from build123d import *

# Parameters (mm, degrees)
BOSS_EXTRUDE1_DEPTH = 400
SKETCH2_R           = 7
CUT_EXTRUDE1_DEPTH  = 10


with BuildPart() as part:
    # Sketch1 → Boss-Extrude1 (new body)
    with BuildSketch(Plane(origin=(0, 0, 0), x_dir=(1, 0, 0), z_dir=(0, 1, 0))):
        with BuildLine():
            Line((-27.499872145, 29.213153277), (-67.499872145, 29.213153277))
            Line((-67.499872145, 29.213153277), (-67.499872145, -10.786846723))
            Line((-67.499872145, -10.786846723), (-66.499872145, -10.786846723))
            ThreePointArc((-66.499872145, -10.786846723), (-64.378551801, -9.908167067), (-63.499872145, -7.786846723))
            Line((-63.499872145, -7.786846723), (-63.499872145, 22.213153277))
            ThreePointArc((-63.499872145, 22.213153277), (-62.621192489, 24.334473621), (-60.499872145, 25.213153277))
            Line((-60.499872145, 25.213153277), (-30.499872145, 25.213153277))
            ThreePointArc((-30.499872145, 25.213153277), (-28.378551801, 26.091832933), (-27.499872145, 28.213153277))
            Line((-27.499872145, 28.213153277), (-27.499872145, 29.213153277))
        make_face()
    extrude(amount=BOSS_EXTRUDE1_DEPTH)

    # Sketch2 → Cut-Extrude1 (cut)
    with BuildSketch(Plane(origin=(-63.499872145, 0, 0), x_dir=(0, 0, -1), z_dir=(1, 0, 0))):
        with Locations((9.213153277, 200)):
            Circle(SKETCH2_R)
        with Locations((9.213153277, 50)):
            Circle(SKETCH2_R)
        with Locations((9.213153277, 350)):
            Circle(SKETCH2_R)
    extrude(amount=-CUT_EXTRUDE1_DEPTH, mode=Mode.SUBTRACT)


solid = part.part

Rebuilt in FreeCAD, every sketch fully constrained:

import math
import FreeCAD as App
import Part
import Sketcher
from FreeCAD import Vector
Q = App.Units.Quantity

doc = App.newDocument("Part")
body = doc.addObject("PartDesign::Body", "Body")

# Sketch on XZ plane
sketch1 = doc.addObject("Sketcher::SketchObject", "Sketch")
body.addObject(sketch1)
sketch1.AttachmentSupport = (doc.XZ_Plane, [""])
sketch1.MapMode = "FlatFace"
sketch1.addGeometry([
    Part.LineSegment(Vector(-27.5, -29.2, 0), Vector(-67.5, -29.2, 0)),  # 0
    Part.LineSegment(Vector(-67.5, -29.2, 0), Vector(-67.5, 10.8, 0)),  # 1
    Part.LineSegment(Vector(-67.5, 10.8, 0), Vector(-66.5, 10.8, 0)),  # 2
    Part.ArcOfCircle(Part.Circle(Vector(-66.5, 7.8, 0), Vector(0, 0, 1), 3), math.radians(0), math.radians(90)),  # 3
    Part.LineSegment(Vector(-63.5, 7.8, 0), Vector(-63.5, -22.2, 0)),  # 4
    Part.ArcOfCircle(Part.Circle(Vector(-60.5, -22.2, 0), Vector(0, 0, 1), 3), math.radians(180), math.radians(270)),  # 5
    Part.LineSegment(Vector(-60.5, -25.2, 0), Vector(-30.5, -25.2, 0)),  # 6
    Part.ArcOfCircle(Part.Circle(Vector(-30.5, -28.2, 0), Vector(0, 0, 1), 3), math.radians(0), math.radians(90)),  # 7
    Part.LineSegment(Vector(-27.5, -28.2, 0), Vector(-27.5, -29.2, 0)),  # 8
], False)
sketch1.addConstraint([
    Sketcher.Constraint("Coincident", 0, 2, 1, 1),
    Sketcher.Constraint("Coincident", 1, 2, 2, 1),
    Sketcher.Constraint("Tangent", 2, 2, 3, 2),
    Sketcher.Constraint("Tangent", 3, 1, 4, 1),
    Sketcher.Constraint("Tangent", 4, 2, 5, 1),
    Sketcher.Constraint("Tangent", 5, 2, 6, 1),
    Sketcher.Constraint("Tangent", 6, 2, 7, 2),
    Sketcher.Constraint("Tangent", 7, 1, 8, 1),
    Sketcher.Constraint("Coincident", 8, 2, 0, 1),
    Sketcher.Constraint("Horizontal", 0),
    Sketcher.Constraint("Vertical", 1),
    Sketcher.Constraint("Horizontal", 2),
    Sketcher.Constraint("Vertical", 4),
    Sketcher.Constraint("Horizontal", 6),
    Sketcher.Constraint("Vertical", 8),
    Sketcher.Constraint("Equal", 3, 5),
    Sketcher.Constraint("Equal", 5, 7),
    Sketcher.Constraint("Equal", 0, 1),
    Sketcher.Constraint("Equal", 6, 4),
    Sketcher.Constraint("Radius", 3, Q("3 mm")),
    Sketcher.Constraint("DistanceX", 0, 2, 0, 1, Q("40 mm")),
    Sketcher.Constraint("DistanceX", 2, 1, 2, 2, Q("1 mm")),
    Sketcher.Constraint("DistanceX", 3, 3, -1, 1, Q("66.499872 mm")),
    Sketcher.Constraint("DistanceY", -1, 1, 3, 3, Q("7.786847 mm")),
])
pad1 = doc.addObject("PartDesign::Pad", "Pad")
body.addObject(pad1)
pad1.Profile = sketch1
pad1.Length = 400
pad1.Reversed = True

# Sketch on YZ plane
sketch2 = doc.addObject("Sketcher::SketchObject", "Sketch001")
body.addObject(sketch2)
sketch2.AttachmentSupport = (doc.YZ_Plane, [""])
sketch2.MapMode = "FlatFace"
sketch2.AttachmentOffset = App.Placement(Vector(0, 0, -63.499872), App.Rotation())
sketch2.addGeometry([
    Part.Circle(Vector(200, -9, 0), Vector(0, 0, 1), 7),
    Part.Circle(Vector(50, -9, 0), Vector(0, 0, 1), 7),
    Part.Circle(Vector(350, -9, 0), Vector(0, 0, 1), 7),
], False)
sketch2.addConstraint([
    Sketcher.Constraint("Equal", 0, 1),
    Sketcher.Constraint("Equal", 1, 2),
    Sketcher.Constraint("Horizontal", 0, 3, 1, 3),
    Sketcher.Constraint("Horizontal", 1, 3, 2, 3),
    Sketcher.Constraint("Diameter", 0, Q("14 mm")),
    Sketcher.Constraint("DistanceX", -1, 1, 0, 3, Q("200 mm")),
    Sketcher.Constraint("DistanceX", -1, 1, 1, 3, Q("50 mm")),
    Sketcher.Constraint("DistanceX", -1, 1, 2, 3, Q("350 mm")),
    Sketcher.Constraint("DistanceY", 0, 3, -1, 1, Q("9.213153 mm")),
])
pocket1 = doc.addObject("PartDesign::Pocket", "Pocket")
body.addObject(pocket1)
pocket1.Profile = sketch2
pocket1.Length = 10

doc.recompute()
